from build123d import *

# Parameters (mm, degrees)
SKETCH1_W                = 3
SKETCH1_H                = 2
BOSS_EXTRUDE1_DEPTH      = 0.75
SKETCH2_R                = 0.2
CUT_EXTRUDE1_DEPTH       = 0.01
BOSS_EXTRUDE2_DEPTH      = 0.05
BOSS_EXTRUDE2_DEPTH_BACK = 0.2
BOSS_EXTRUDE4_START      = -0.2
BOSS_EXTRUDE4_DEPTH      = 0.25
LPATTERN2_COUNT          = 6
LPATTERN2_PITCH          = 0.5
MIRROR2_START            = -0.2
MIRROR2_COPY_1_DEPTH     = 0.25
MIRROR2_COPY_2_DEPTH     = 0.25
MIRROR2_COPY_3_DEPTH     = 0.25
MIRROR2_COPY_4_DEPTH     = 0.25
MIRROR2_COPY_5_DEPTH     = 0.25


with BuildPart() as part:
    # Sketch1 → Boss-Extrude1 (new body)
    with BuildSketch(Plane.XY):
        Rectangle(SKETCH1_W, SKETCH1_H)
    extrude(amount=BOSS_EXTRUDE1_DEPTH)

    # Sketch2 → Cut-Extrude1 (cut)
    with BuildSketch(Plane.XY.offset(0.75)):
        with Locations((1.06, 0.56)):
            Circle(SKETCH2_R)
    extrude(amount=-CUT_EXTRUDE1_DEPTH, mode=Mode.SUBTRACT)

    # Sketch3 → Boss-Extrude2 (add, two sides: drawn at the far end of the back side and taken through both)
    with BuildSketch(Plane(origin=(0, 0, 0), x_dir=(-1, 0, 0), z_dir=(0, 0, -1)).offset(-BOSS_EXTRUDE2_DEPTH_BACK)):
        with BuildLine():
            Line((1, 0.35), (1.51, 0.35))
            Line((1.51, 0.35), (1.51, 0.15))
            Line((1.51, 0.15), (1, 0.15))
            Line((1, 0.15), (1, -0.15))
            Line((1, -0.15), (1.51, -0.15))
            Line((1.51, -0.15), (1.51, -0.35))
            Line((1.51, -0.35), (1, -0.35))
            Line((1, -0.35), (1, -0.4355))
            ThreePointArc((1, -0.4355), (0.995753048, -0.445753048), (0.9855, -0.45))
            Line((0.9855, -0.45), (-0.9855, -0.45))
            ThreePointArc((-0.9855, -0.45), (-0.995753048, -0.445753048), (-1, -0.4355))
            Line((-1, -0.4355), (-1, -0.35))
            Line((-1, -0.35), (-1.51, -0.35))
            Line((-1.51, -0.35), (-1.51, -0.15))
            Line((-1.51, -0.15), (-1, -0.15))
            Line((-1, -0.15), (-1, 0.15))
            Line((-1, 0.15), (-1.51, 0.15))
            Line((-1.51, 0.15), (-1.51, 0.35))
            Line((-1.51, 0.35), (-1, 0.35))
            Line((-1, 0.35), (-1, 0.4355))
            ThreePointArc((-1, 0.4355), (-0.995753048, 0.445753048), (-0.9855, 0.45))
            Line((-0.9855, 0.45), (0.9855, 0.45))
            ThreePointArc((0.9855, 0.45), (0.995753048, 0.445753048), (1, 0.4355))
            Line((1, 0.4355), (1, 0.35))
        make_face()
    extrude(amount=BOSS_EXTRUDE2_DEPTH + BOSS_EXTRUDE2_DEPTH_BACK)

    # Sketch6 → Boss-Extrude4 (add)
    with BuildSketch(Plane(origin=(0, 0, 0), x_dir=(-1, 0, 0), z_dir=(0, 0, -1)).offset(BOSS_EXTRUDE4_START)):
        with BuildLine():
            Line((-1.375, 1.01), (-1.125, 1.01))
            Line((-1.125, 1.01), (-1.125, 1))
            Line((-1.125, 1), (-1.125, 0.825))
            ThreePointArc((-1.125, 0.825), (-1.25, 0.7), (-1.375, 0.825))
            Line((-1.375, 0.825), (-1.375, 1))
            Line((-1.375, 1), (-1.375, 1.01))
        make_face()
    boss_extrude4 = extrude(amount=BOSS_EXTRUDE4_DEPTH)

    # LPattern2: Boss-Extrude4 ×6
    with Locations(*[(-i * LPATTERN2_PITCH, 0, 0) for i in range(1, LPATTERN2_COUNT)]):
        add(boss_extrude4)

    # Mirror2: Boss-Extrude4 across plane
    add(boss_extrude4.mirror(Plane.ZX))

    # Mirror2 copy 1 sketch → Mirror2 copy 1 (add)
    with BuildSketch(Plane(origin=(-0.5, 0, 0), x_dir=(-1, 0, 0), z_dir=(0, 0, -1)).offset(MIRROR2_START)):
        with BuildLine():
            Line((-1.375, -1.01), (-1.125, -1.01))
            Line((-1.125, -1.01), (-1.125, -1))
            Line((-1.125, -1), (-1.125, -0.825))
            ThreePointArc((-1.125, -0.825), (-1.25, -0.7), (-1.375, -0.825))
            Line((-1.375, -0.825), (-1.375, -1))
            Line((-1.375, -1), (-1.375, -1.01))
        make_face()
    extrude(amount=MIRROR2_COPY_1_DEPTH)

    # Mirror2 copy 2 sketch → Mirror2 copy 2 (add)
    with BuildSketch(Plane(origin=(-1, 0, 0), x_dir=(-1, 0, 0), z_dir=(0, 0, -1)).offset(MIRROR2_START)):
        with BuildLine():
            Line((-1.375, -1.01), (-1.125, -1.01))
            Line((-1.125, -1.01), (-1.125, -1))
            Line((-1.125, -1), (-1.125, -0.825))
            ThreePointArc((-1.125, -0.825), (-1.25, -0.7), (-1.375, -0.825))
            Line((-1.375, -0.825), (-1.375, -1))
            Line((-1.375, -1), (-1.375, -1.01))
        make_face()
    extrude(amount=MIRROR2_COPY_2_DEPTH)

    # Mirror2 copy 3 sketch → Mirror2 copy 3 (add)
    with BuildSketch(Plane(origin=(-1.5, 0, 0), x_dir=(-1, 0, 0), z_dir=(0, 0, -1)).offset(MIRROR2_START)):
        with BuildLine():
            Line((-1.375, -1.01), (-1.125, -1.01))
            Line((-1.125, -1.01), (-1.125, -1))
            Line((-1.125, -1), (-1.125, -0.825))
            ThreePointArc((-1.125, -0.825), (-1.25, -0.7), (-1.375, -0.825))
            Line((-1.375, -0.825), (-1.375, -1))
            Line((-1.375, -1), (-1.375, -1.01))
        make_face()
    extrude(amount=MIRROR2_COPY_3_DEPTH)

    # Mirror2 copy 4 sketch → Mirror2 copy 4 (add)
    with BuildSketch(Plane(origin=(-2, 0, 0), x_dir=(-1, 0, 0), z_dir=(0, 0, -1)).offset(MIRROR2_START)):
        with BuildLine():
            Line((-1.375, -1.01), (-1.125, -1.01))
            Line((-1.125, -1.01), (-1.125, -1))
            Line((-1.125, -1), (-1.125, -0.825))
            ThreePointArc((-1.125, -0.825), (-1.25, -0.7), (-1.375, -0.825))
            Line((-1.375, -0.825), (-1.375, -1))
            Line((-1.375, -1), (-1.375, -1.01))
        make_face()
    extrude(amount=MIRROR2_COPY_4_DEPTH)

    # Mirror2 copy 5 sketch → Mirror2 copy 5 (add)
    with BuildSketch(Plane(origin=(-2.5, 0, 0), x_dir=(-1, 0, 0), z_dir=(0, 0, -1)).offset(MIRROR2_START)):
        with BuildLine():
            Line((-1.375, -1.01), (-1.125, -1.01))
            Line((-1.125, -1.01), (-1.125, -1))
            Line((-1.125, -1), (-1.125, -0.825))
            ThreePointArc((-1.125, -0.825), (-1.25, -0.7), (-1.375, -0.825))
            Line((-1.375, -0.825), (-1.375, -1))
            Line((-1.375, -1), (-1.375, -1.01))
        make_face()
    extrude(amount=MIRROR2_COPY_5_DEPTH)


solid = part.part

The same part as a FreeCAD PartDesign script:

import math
import FreeCAD as App
import Part
import Sketcher

doc = App.newDocument("Part")
body = doc.addObject("PartDesign::Body", "Body")

# Sketch on XY plane
sketch1 = doc.addObject("Sketcher::SketchObject", "Sketch")
body.addObject(sketch1)
sketch1.AttachmentSupport = (doc.XY_Plane, [""])
sketch1.MapMode = "FlatFace"
sketch1.addGeometry(Part.LineSegment(App.Vector(-1.5, 1, 0), App.Vector(-1.5, -1, 0)), False)
sketch1.addGeometry(Part.LineSegment(App.Vector(-1.5, -1, 0), App.Vector(1.5, -1, 0)), False)
sketch1.addGeometry(Part.LineSegment(App.Vector(1.5, -1, 0), App.Vector(1.5, 1, 0)), False)
sketch1.addGeometry(Part.LineSegment(App.Vector(1.5, 1, 0), App.Vector(-1.5, 1, 0)), False)
sketch1.addConstraint(Sketcher.Constraint("Coincident", 0, 2, 1, 1))
sketch1.addConstraint(Sketcher.Constraint("Coincident", 1, 2, 2, 1))
sketch1.addConstraint(Sketcher.Constraint("Coincident", 2, 2, 3, 1))
sketch1.addConstraint(Sketcher.Constraint("Coincident", 3, 2, 0, 1))
sketch1.addConstraint(Sketcher.Constraint("Vertical", 0))
sketch1.addConstraint(Sketcher.Constraint("Horizontal", 1))
sketch1.addConstraint(Sketcher.Constraint("Vertical", 2))
sketch1.addConstraint(Sketcher.Constraint("Horizontal", 3))
sketch1.addConstraint(Sketcher.Constraint("Symmetric", 0, 2, 2, 2, -1, 1))
sketch1.addConstraint(Sketcher.Constraint("DistanceX", 1, 1, 1, 2, 3.0))
sketch1.addConstraint(Sketcher.Constraint("DistanceY", 0, 2, 0, 1, 2.0))
pad1 = doc.addObject("PartDesign::Pad", "Pad")
body.addObject(pad1)
pad1.Profile = sketch1
pad1.Length = 0.75

# Sketch on XY plane
sketch2 = doc.addObject("Sketcher::SketchObject", "Sketch001")
body.addObject(sketch2)
sketch2.AttachmentSupport = (doc.XY_Plane, [""])
sketch2.MapMode = "FlatFace"
sketch2.AttachmentOffset = App.Placement(App.Vector(0, 0, 0.75), App.Rotation())
sketch2.addGeometry(Part.Circle(App.Vector(1.06, 0.56, 0), App.Vector(0, 0, 1), 0.2), False)
sketch2.addConstraint(Sketcher.Constraint("Diameter", 0, 0.4))
sketch2.addConstraint(Sketcher.Constraint("DistanceX", -1, 1, 0, 3, 1.06))
sketch2.addConstraint(Sketcher.Constraint("DistanceY", -1, 1, 0, 3, 0.56))
pocket1 = doc.addObject("PartDesign::Pocket", "Pocket")
body.addObject(pocket1)
pocket1.Profile = sketch2
pocket1.Length = 0.01

# Sketch on XY plane
sketch3 = doc.addObject("Sketcher::SketchObject", "Sketch002")
body.addObject(sketch3)
sketch3.AttachmentSupport = (doc.XY_Plane, [""])
sketch3.MapMode = "FlatFace"
sketch3.addGeometry(Part.LineSegment(App.Vector(-1.51, 0.35, 0), App.Vector(-1, 0.35, 0)), False)
sketch3.addGeometry(Part.LineSegment(App.Vector(-1, 0.35, 0), App.Vector(-1, 0.435, 0)), False)
sketch3.addGeometry(Part.ArcOfCircle(Part.Circle(App.Vector(-0.985, 0.435, 0), App.Vector(0, 0, 1), 0.015), math.radians(90), math.radians(180)), False)
sketch3.addGeometry(Part.LineSegment(App.Vector(-0.986, 0.45, 0), App.Vector(0.986, 0.45, 0)), False)
sketch3.addGeometry(Part.ArcOfCircle(Part.Circle(App.Vector(0.985, 0.435, 0), App.Vector(0, 0, 1), 0.015), math.radians(0), math.radians(90)), False)
sketch3.addGeometry(Part.LineSegment(App.Vector(1, 0.435, 0), App.Vector(1, 0.35, 0)), False)
sketch3.addGeometry(Part.LineSegment(App.Vector(1, 0.35, 0), App.Vector(1.51, 0.35, 0)), False)
sketch3.addGeometry(Part.LineSegment(App.Vector(1.51, 0.35, 0), App.Vector(1.51, 0.15, 0)), False)
sketch3.addGeometry(Part.LineSegment(App.Vector(1.51, 0.15, 0), App.Vector(1, 0.15, 0)), False)
sketch3.addGeometry(Part.LineSegment(App.Vector(1, 0.15, 0), App.Vector(1, -0.15, 0)), False)
sketch3.addGeometry(Part.LineSegment(App.Vector(1, -0.15, 0), App.Vector(1.51, -0.15, 0)), False)
sketch3.addGeometry(Part.LineSegment(App.Vector(1.51, -0.15, 0), App.Vector(1.51, -0.35, 0)), False)
sketch3.addGeometry(Part.LineSegment(App.Vector(1.51, -0.35, 0), App.Vector(1, -0.35, 0)), False)
sketch3.addGeometry(Part.LineSegment(App.Vector(1, -0.35, 0), App.Vector(1, -0.435, 0)), False)
sketch3.addGeometry(Part.ArcOfCircle(Part.Circle(App.Vector(0.985, -0.435, 0), App.Vector(0, 0, 1), 0.015), math.radians(-90), math.radians(0)), False)
sketch3.addGeometry(Part.LineSegment(App.Vector(0.986, -0.45, 0), App.Vector(-0.986, -0.45, 0)), False)
sketch3.addGeometry(Part.ArcOfCircle(Part.Circle(App.Vector(-0.985, -0.435, 0), App.Vector(0, 0, 1), 0.015), math.radians(-180), math.radians(-90)), False)
sketch3.addGeometry(Part.LineSegment(App.Vector(-1, -0.435, 0), App.Vector(-1, -0.35, 0)), False)
sketch3.addGeometry(Part.LineSegment(App.Vector(-1, -0.35, 0), App.Vector(-1.51, -0.35, 0)), False)
sketch3.addGeometry(Part.LineSegment(App.Vector(-1.51, -0.35, 0), App.Vector(-1.51, -0.15, 0)), False)
sketch3.addGeometry(Part.LineSegment(App.Vector(-1.51, -0.15, 0), App.Vector(-1, -0.15, 0)), False)
sketch3.addGeometry(Part.LineSegment(App.Vector(-1, -0.15, 0), App.Vector(-1, 0.15, 0)), False)
sketch3.addGeometry(Part.LineSegment(App.Vector(-1, 0.15, 0), App.Vector(-1.51, 0.15, 0)), False)
sketch3.addGeometry(Part.LineSegment(App.Vector(-1.51, 0.15, 0), App.Vector(-1.51, 0.35, 0)), False)
sketch3.addConstraint(Sketcher.Constraint("Coincident", 0, 2, 1, 1))
sketch3.addConstraint(Sketcher.Constraint("Tangent", 1, 2, 2, 2))
sketch3.addConstraint(Sketcher.Constraint("Tangent", 2, 1, 3, 1))
sketch3.addConstraint(Sketcher.Constraint("Tangent", 3, 2, 4, 2))
sketch3.addConstraint(Sketcher.Constraint("Tangent", 4, 1, 5, 1))
sketch3.addConstraint(Sketcher.Constraint("Coincident", 5, 2, 6, 1))
sketch3.addConstraint(Sketcher.Constraint("Coincident", 6, 2, 7, 1))
sketch3.addConstraint(Sketcher.Constraint("Coincident", 7, 2, 8, 1))
sketch3.addConstraint(Sketcher.Constraint("Coincident", 8, 2, 9, 1))
sketch3.addConstraint(Sketcher.Constraint("Coincident", 9, 2, 10, 1))
sketch3.addConstraint(Sketcher.Constraint("Coincident", 10, 2, 11, 1))
sketch3.addConstraint(Sketcher.Constraint("Coincident", 11, 2, 12, 1))
sketch3.addConstraint(Sketcher.Constraint("Coincident", 12, 2, 13, 1))
sketch3.addConstraint(Sketcher.Constraint("Tangent", 13, 2, 14, 2))
sketch3.addConstraint(Sketcher.Constraint("Tangent", 14, 1, 15, 1))
sketch3.addConstraint(Sketcher.Constraint("Tangent", 15, 2, 16, 2))
sketch3.addConstraint(Sketcher.Constraint("Tangent", 16, 1, 17, 1))
sketch3.addConstraint(Sketcher.Constraint("Coincident", 17, 2, 18, 1))
sketch3.addConstraint(Sketcher.Constraint("Coincident", 18, 2, 19, 1))
sketch3.addConstraint(Sketcher.Constraint("Coincident", 19, 2, 20, 1))
sketch3.addConstraint(Sketcher.Constraint("Coincident", 20, 2, 21, 1))
sketch3.addConstraint(Sketcher.Constraint("Coincident", 21, 2, 22, 1))
sketch3.addConstraint(Sketcher.Constraint("Coincident", 22, 2, 23, 1))
sketch3.addConstraint(Sketcher.Constraint("Coincident", 23, 2, 0, 1))
sketch3.addConstraint(Sketcher.Constraint("Horizontal", 0))
sketch3.addConstraint(Sketcher.Constraint("Vertical", 1))
sketch3.addConstraint(Sketcher.Constraint("Horizontal", 3))
sketch3.addConstraint(Sketcher.Constraint("Vertical", 5))
sketch3.addConstraint(Sketcher.Constraint("Horizontal", 6))
sketch3.addConstraint(Sketcher.Constraint("Vertical", 7))
sketch3.addConstraint(Sketcher.Constraint("Horizontal", 8))
sketch3.addConstraint(Sketcher.Constraint("Vertical", 9))
sketch3.addConstraint(Sketcher.Constraint("Horizontal", 10))
sketch3.addConstraint(Sketcher.Constraint("Vertical", 11))
sketch3.addConstraint(Sketcher.Constraint("Horizontal", 12))
sketch3.addConstraint(Sketcher.Constraint("Vertical", 13))
sketch3.addConstraint(Sketcher.Constraint("Horizontal", 15))
sketch3.addConstraint(Sketcher.Constraint("Vertical", 17))
sketch3.addConstraint(Sketcher.Constraint("Horizontal", 18))
sketch3.addConstraint(Sketcher.Constraint("Vertical", 19))
sketch3.addConstraint(Sketcher.Constraint("Horizontal", 20))
sketch3.addConstraint(Sketcher.Constraint("Vertical", 21))
sketch3.addConstraint(Sketcher.Constraint("Horizontal", 22))
sketch3.addConstraint(Sketcher.Constraint("Vertical", 23))
sketch3.addConstraint(Sketcher.Constraint("Equal", 2, 4))
sketch3.addConstraint(Sketcher.Constraint("Equal", 4, 14))
sketch3.addConstraint(Sketcher.Constraint("Equal", 14, 16))
sketch3.addConstraint(Sketcher.Constraint("Symmetric", 2, 3, 14, 3, -1, 1))
sketch3.addConstraint(Sketcher.Constraint("Symmetric", 5, 2, 17, 2, -1, 1))
sketch3.addConstraint(Sketcher.Constraint("Symmetric", 7, 2, 19, 2, -1, 1))
sketch3.addConstraint(Sketcher.Constraint("Symmetric", 9, 2, 21, 2, -1, 1))
sketch3.addConstraint(Sketcher.Constraint("Symmetric", 11, 2, 23, 2, -1, 1))
sketch3.addConstraint(Sketcher.Constraint("Symmetric", 0, 2, 5, 2, -2))
sketch3.addConstraint(Sketcher.Constraint("Symmetric", 10, 2, 19, 2, -2))
sketch3.addConstraint(Sketcher.Constraint("Vertical", 5, 2, 8, 2))
sketch3.addConstraint(Sketcher.Constraint("DistanceY", 7, 2, 7, 1, 0.2))
sketch3.addConstraint(Sketcher.Constraint("DistanceY", 9, 2, 9, 1, 0.3))
sketch3.addConstraint(Sketcher.Constraint("DistanceX", 0, 2, -1, 1, 1.0))
sketch3.addConstraint(Sketcher.Constraint("DistanceX", 0, 1, 0, 2, 0.51))
sketch3.addConstraint(Sketcher.Constraint("Radius", 2, 0.0145))
sketch3.addConstraint(Sketcher.Constraint("DistanceY", 0, 2, 2, 1, 0.1))
pad2 = doc.addObject("PartDesign::Pad", "Pad001")
body.addObject(pad2)
pad2.Profile = sketch3
pad2.Type = "TwoLengths"
pad2.Length = 0.05
pad2.Length2 = 0.2
pad2.Reversed = True

# Sketch on XY plane
sketch4 = doc.addObject("Sketcher::SketchObject", "Sketch003")
body.addObject(sketch4)
sketch4.AttachmentSupport = (doc.XY_Plane, [""])
sketch4.MapMode = "FlatFace"
sketch4.AttachmentOffset = App.Placement(App.Vector(0, 0, 0.2), App.Rotation())
sketch4.addGeometry(Part.LineSegment(App.Vector(1.12, 1.01, 0), App.Vector(1.38, 1.01, 0)), False)
sketch4.addGeometry(Part.LineSegment(App.Vector(1.38, 1.01, 0), App.Vector(1.38, 0.82, 0)), False)
sketch4.addGeometry(Part.ArcOfCircle(Part.Circle(App.Vector(1.25, 0.82, 0), App.Vector(0, 0, 1), 0.12), math.radians(180), math.radians(360)), False)
sketch4.addGeometry(Part.LineSegment(App.Vector(1.12, 0.82, 0), App.Vector(1.12, 1.01, 0)), False)
sketch4.addConstraint(Sketcher.Constraint("Coincident", 0, 2, 1, 1))
sketch4.addConstraint(Sketcher.Constraint("Tangent", 1, 2, 2, 2))
sketch4.addConstraint(Sketcher.Constraint("Tangent", 2, 1, 3, 1))
sketch4.addConstraint(Sketcher.Constraint("Coincident", 3, 2, 0, 1))
sketch4.addConstraint(Sketcher.Constraint("Horizontal", 0))
sketch4.addConstraint(Sketcher.Constraint("Vertical", 1))
sketch4.addConstraint(Sketcher.Constraint("Vertical", 3))
sketch4.addConstraint(Sketcher.Constraint("Radius", 2, 0.125))
sketch4.addConstraint(Sketcher.Constraint("DistanceY", 1, 2, 1, 1, 0.185))
sketch4.addConstraint(Sketcher.Constraint("DistanceX", -1, 1, 2, 3, 1.25))
sketch4.addConstraint(Sketcher.Constraint("DistanceY", -1, 1, 0, 2, 1.01))
pad3 = doc.addObject("PartDesign::Pad", "Pad002")
body.addObject(pad3)
pad3.Profile = sketch4
pad3.Length = 0.25
pad3.Reversed = True
doc.recompute()

linearpattern = doc.addObject("PartDesign::LinearPattern", "LinearPattern")
body.addObject(linearpattern)
linearpattern.Originals = [pad3]
linearpattern.Direction = (doc.X_Axis, [""])
linearpattern.Mode = "offset"
linearpattern.Offset = 0.5
linearpattern.Occurrences = 6
linearpattern.Reversed = True
body.Tip = linearpattern
doc.recompute()

mirrored = doc.addObject("PartDesign::Mirrored", "Mirrored")
body.addObject(mirrored)
mirrored.Originals = [pad3]
mirrored.MirrorPlane = (doc.XZ_Plane, [""])
body.Tip = mirrored

# Sketch on XY plane
sketch5 = doc.addObject("Sketcher::SketchObject", "Sketch004")
body.addObject(sketch5)
sketch5.AttachmentSupport = (doc.XY_Plane, [""])
sketch5.MapMode = "FlatFace"
sketch5.AttachmentOffset = App.Placement(App.Vector(0, 0, 0.2), App.Rotation())
sketch5.addGeometry(Part.LineSegment(App.Vector(0.88, -1.01, 0), App.Vector(0.62, -1.01, 0)), False)
sketch5.addGeometry(Part.LineSegment(App.Vector(0.62, -1.01, 0), App.Vector(0.62, -0.82, 0)), False)
sketch5.addGeometry(Part.ArcOfCircle(Part.Circle(App.Vector(0.75, -0.82, 0), App.Vector(0, 0, 1), 0.12), math.radians(0), math.radians(180)), False)
sketch5.addGeometry(Part.LineSegment(App.Vector(0.88, -0.82, 0), App.Vector(0.88, -1.01, 0)), False)
sketch5.addConstraint(Sketcher.Constraint("Coincident", 0, 2, 1, 1))
sketch5.addConstraint(Sketcher.Constraint("Tangent", 1, 2, 2, 2))
sketch5.addConstraint(Sketcher.Constraint("Tangent", 2, 1, 3, 1))
sketch5.addConstraint(Sketcher.Constraint("Coincident", 3, 2, 0, 1))
sketch5.addConstraint(Sketcher.Constraint("Horizontal", 0))
sketch5.addConstraint(Sketcher.Constraint("Vertical", 1))
sketch5.addConstraint(Sketcher.Constraint("Vertical", 3))
sketch5.addConstraint(Sketcher.Constraint("Radius", 2, 0.125))
sketch5.addConstraint(Sketcher.Constraint("DistanceY", 1, 1, 1, 2, 0.185))
sketch5.addConstraint(Sketcher.Constraint("DistanceX", -1, 1, 2, 3, 0.75))
sketch5.addConstraint(Sketcher.Constraint("DistanceY", 0, 2, -1, 1, 1.01))
pad4 = doc.addObject("PartDesign::Pad", "Pad003")
body.addObject(pad4)
pad4.Profile = sketch5
pad4.Length = 0.25
pad4.Reversed = True

# Sketch on XY plane
sketch6 = doc.addObject("Sketcher::SketchObject", "Sketch005")
body.addObject(sketch6)
sketch6.AttachmentSupport = (doc.XY_Plane, [""])
sketch6.MapMode = "FlatFace"
sketch6.AttachmentOffset = App.Placement(App.Vector(0, 0, 0.2), App.Rotation())
sketch6.addGeometry(Part.LineSegment(App.Vector(0.38, -1.01, 0), App.Vector(0.12, -1.01, 0)), False)
sketch6.addGeometry(Part.LineSegment(App.Vector(0.12, -1.01, 0), App.Vector(0.12, -0.82, 0)), False)
sketch6.addGeometry(Part.ArcOfCircle(Part.Circle(App.Vector(0.25, -0.82, 0), App.Vector(0, 0, 1), 0.12), math.radians(0), math.radians(180)), False)
sketch6.addGeometry(Part.LineSegment(App.Vector(0.38, -0.82, 0), App.Vector(0.38, -1.01, 0)), False)
sketch6.addConstraint(Sketcher.Constraint("Coincident", 0, 2, 1, 1))
sketch6.addConstraint(Sketcher.Constraint("Tangent", 1, 2, 2, 2))
sketch6.addConstraint(Sketcher.Constraint("Tangent", 2, 1, 3, 1))
sketch6.addConstraint(Sketcher.Constraint("Coincident", 3, 2, 0, 1))
sketch6.addConstraint(Sketcher.Constraint("Horizontal", 0))
sketch6.addConstraint(Sketcher.Constraint("Vertical", 1))
sketch6.addConstraint(Sketcher.Constraint("Vertical", 3))
sketch6.addConstraint(Sketcher.Constraint("Radius", 2, 0.125))
sketch6.addConstraint(Sketcher.Constraint("DistanceY", 1, 1, 1, 2, 0.185))
sketch6.addConstraint(Sketcher.Constraint("DistanceX", -1, 1, 2, 3, 0.25))
sketch6.addConstraint(Sketcher.Constraint("DistanceY", 0, 2, -1, 1, 1.01))
pad5 = doc.addObject("PartDesign::Pad", "Pad004")
body.addObject(pad5)
pad5.Profile = sketch6
pad5.Length = 0.25
pad5.Reversed = True

# Sketch on XY plane
sketch7 = doc.addObject("Sketcher::SketchObject", "Sketch006")
body.addObject(sketch7)
sketch7.AttachmentSupport = (doc.XY_Plane, [""])
sketch7.MapMode = "FlatFace"
sketch7.AttachmentOffset = App.Placement(App.Vector(0, 0, 0.2), App.Rotation())
sketch7.addGeometry(Part.LineSegment(App.Vector(-0.12, -1.01, 0), App.Vector(-0.38, -1.01, 0)), False)
sketch7.addGeometry(Part.LineSegment(App.Vector(-0.38, -1.01, 0), App.Vector(-0.38, -0.82, 0)), False)
sketch7.addGeometry(Part.ArcOfCircle(Part.Circle(App.Vector(-0.25, -0.82, 0), App.Vector(0, 0, 1), 0.12), math.radians(0), math.radians(180)), False)
sketch7.addGeometry(Part.LineSegment(App.Vector(-0.12, -0.82, 0), App.Vector(-0.12, -1.01, 0)), False)
sketch7.addConstraint(Sketcher.Constraint("Coincident", 0, 2, 1, 1))
sketch7.addConstraint(Sketcher.Constraint("Tangent", 1, 2, 2, 2))
sketch7.addConstraint(Sketcher.Constraint("Tangent", 2, 1, 3, 1))
sketch7.addConstraint(Sketcher.Constraint("Coincident", 3, 2, 0, 1))
sketch7.addConstraint(Sketcher.Constraint("Horizontal", 0))
sketch7.addConstraint(Sketcher.Constraint("Vertical", 1))
sketch7.addConstraint(Sketcher.Constraint("Vertical", 3))
sketch7.addConstraint(Sketcher.Constraint("Radius", 2, 0.125))
sketch7.addConstraint(Sketcher.Constraint("DistanceY", 1, 1, 1, 2, 0.185))
sketch7.addConstraint(Sketcher.Constraint("DistanceX", 2, 3, -1, 1, 0.25))
sketch7.addConstraint(Sketcher.Constraint("DistanceY", 0, 2, -1, 1, 1.01))
pad6 = doc.addObject("PartDesign::Pad", "Pad005")
body.addObject(pad6)
pad6.Profile = sketch7
pad6.Length = 0.25
pad6.Reversed = True

# Sketch on XY plane
sketch8 = doc.addObject("Sketcher::SketchObject", "Sketch007")
body.addObject(sketch8)
sketch8.AttachmentSupport = (doc.XY_Plane, [""])
sketch8.MapMode = "FlatFace"
sketch8.AttachmentOffset = App.Placement(App.Vector(0, 0, 0.2), App.Rotation())
sketch8.addGeometry(Part.LineSegment(App.Vector(-0.62, -1.01, 0), App.Vector(-0.88, -1.01, 0)), False)
sketch8.addGeometry(Part.LineSegment(App.Vector(-0.88, -1.01, 0), App.Vector(-0.88, -0.82, 0)), False)
sketch8.addGeometry(Part.ArcOfCircle(Part.Circle(App.Vector(-0.75, -0.82, 0), App.Vector(0, 0, 1), 0.12), math.radians(0), math.radians(180)), False)
sketch8.addGeometry(Part.LineSegment(App.Vector(-0.62, -0.82, 0), App.Vector(-0.62, -1.01, 0)), False)
sketch8.addConstraint(Sketcher.Constraint("Coincident", 0, 2, 1, 1))
sketch8.addConstraint(Sketcher.Constraint("Tangent", 1, 2, 2, 2))
sketch8.addConstraint(Sketcher.Constraint("Tangent", 2, 1, 3, 1))
sketch8.addConstraint(Sketcher.Constraint("Coincident", 3, 2, 0, 1))
sketch8.addConstraint(Sketcher.Constraint("Horizontal", 0))
sketch8.addConstraint(Sketcher.Constraint("Vertical", 1))
sketch8.addConstraint(Sketcher.Constraint("Vertical", 3))
sketch8.addConstraint(Sketcher.Constraint("Radius", 2, 0.125))
sketch8.addConstraint(Sketcher.Constraint("DistanceY", 1, 1, 1, 2, 0.185))
sketch8.addConstraint(Sketcher.Constraint("DistanceX", 2, 3, -1, 1, 0.75))
sketch8.addConstraint(Sketcher.Constraint("DistanceY", 0, 2, -1, 1, 1.01))
pad7 = doc.addObject("PartDesign::Pad", "Pad006")
body.addObject(pad7)
pad7.Profile = sketch8
pad7.Length = 0.25
pad7.Reversed = True

# Sketch on XY plane
sketch9 = doc.addObject("Sketcher::SketchObject", "Sketch008")
body.addObject(sketch9)
sketch9.AttachmentSupport = (doc.XY_Plane, [""])
sketch9.MapMode = "FlatFace"
sketch9.AttachmentOffset = App.Placement(App.Vector(0, 0, 0.2), App.Rotation())
sketch9.addGeometry(Part.LineSegment(App.Vector(-1.12, -1.01, 0), App.Vector(-1.38, -1.01, 0)), False)
sketch9.addGeometry(Part.LineSegment(App.Vector(-1.38, -1.01, 0), App.Vector(-1.38, -0.82, 0)), False)
sketch9.addGeometry(Part.ArcOfCircle(Part.Circle(App.Vector(-1.25, -0.82, 0), App.Vector(0, 0, 1), 0.12), math.radians(0), math.radians(180)), False)
sketch9.addGeometry(Part.LineSegment(App.Vector(-1.12, -0.82, 0), App.Vector(-1.12, -1.01, 0)), False)
sketch9.addConstraint(Sketcher.Constraint("Coincident", 0, 2, 1, 1))
sketch9.addConstraint(Sketcher.Constraint("Tangent", 1, 2, 2, 2))
sketch9.addConstraint(Sketcher.Constraint("Tangent", 2, 1, 3, 1))
sketch9.addConstraint(Sketcher.Constraint("Coincident", 3, 2, 0, 1))
sketch9.addConstraint(Sketcher.Constraint("Horizontal", 0))
sketch9.addConstraint(Sketcher.Constraint("Vertical", 1))
sketch9.addConstraint(Sketcher.Constraint("Vertical", 3))
sketch9.addConstraint(Sketcher.Constraint("Radius", 2, 0.125))
sketch9.addConstraint(Sketcher.Constraint("DistanceY", 1, 1, 1, 2, 0.185))
sketch9.addConstraint(Sketcher.Constraint("DistanceX", 2, 3, -1, 1, 1.25))
sketch9.addConstraint(Sketcher.Constraint("DistanceY", 0, 2, -1, 1, 1.01))
pad8 = doc.addObject("PartDesign::Pad", "Pad007")
body.addObject(pad8)
pad8.Profile = sketch9
pad8.Length = 0.25
pad8.Reversed = True

doc.recompute()
